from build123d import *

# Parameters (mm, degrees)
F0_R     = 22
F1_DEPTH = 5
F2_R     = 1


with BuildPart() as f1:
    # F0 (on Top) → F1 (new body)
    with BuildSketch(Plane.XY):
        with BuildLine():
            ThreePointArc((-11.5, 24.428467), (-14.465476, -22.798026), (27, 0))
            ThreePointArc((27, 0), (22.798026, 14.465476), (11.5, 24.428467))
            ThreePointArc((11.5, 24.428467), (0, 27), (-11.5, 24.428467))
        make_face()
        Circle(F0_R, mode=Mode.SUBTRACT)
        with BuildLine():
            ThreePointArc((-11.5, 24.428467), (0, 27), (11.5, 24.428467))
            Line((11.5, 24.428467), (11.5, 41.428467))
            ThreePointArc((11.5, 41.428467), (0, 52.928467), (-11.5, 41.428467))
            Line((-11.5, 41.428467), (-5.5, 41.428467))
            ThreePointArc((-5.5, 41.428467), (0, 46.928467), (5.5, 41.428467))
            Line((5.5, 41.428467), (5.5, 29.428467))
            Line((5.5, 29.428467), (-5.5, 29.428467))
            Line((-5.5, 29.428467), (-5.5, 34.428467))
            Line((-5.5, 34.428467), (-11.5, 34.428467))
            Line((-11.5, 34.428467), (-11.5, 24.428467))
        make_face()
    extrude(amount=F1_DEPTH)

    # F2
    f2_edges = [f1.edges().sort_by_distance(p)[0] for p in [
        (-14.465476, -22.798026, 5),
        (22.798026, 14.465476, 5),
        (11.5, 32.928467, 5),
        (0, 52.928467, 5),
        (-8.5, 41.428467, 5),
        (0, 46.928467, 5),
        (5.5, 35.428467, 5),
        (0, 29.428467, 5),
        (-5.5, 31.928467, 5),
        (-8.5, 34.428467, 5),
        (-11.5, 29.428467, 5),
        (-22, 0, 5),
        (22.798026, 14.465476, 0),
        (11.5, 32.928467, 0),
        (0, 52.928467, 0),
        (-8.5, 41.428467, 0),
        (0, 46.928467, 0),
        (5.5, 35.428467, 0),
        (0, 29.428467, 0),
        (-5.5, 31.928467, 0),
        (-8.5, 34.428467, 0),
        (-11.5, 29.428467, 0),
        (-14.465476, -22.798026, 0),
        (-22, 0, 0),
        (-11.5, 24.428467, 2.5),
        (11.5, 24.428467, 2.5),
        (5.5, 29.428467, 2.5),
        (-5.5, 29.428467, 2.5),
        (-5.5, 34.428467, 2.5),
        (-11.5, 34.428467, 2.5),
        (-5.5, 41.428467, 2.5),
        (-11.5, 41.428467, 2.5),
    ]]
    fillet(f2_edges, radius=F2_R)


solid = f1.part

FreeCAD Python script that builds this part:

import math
import FreeCAD as App
import Part
import Sketcher

V = App.Vector
Q = App.Units.Quantity

doc = App.newDocument("Part")
body = doc.addObject("PartDesign::Body", "Body")

sketch1 = doc.addObject("Sketcher::SketchObject", "Sketch")
body.addObject(sketch1)
sketch1.AttachmentSupport = (doc.XY_Plane, [""])
sketch1.MapMode = "FlatFace"
sketch1.addGeometry(Part.ArcOfCircle(Part.Circle(V(0, 0, 0), V(0, 0, 1), 27), math.radians(115.209286), math.radians(360)), False)
sketch1.addGeometry(Part.ArcOfCircle(Part.Circle(V(-0.000001, -0.000001, 0), V(0, 0, 1), 27.000001), math.radians(0.000002), math.radians(64.790712)), False)
sketch1.addGeometry(Part.LineSegment(V(11.5, 24.428467, 0), V(11.5, 41.428467, 0)), False)
sketch1.addGeometry(Part.ArcOfCircle(Part.Circle(V(0, 41.428467, 0), V(0, 0, 1), 11.5), math.radians(0), math.radians(180)), False)
sketch1.addGeometry(Part.LineSegment(V(-11.5, 41.428467, 0), V(-5.5, 41.428467, 0)), False)
sketch1.addGeometry(Part.ArcOfCircle(Part.Circle(V(0, 41.428467, 0), V(0, 0, 1), 5.5), math.radians(0), math.radians(180)), False)
sketch1.addGeometry(Part.LineSegment(V(5.5, 41.428467, 0), V(5.5, 29.428467, 0)), False)
sketch1.addGeometry(Part.LineSegment(V(5.5, 29.428467, 0), V(-5.5, 29.428467, 0)), False)
sketch1.addGeometry(Part.LineSegment(V(-5.5, 29.428467, 0), V(-5.5, 34.428467, 0)), False)
sketch1.addGeometry(Part.LineSegment(V(-5.5, 34.428467, 0), V(-11.5, 34.428467, 0)), False)
sketch1.addGeometry(Part.LineSegment(V(-11.5, 34.428467, 0), V(-11.5, 24.428467, 0)), False)
sketch1.addGeometry(Part.Circle(V(0, 0, 0), V(0, 0, 1), 22), False)
sketch1.addConstraint(Sketcher.Constraint("Tangent", 0, 2, 1, 1))
sketch1.addConstraint(Sketcher.Constraint("Coincident", 1, 2, 2, 1))
sketch1.addConstraint(Sketcher.Constraint("Tangent", 2, 2, 3, 1))
sketch1.addConstraint(Sketcher.Constraint("Coincident", 3, 2, 4, 1))
sketch1.addConstraint(Sketcher.Constraint("Coincident", 4, 2, 5, 2))
sketch1.addConstraint(Sketcher.Constraint("Tangent", 5, 1, 6, 1))
sketch1.addConstraint(Sketcher.Constraint("Coincident", 6, 2, 7, 1))
sketch1.addConstraint(Sketcher.Constraint("Coincident", 7, 2, 8, 1))
sketch1.addConstraint(Sketcher.Constraint("Coincident", 8, 2, 9, 1))
sketch1.addConstraint(Sketcher.Constraint("Coincident", 9, 2, 10, 1))
sketch1.addConstraint(Sketcher.Constraint("Coincident", 10, 2, 0, 1))
sketch1.addConstraint(Sketcher.Constraint("Vertical", 2))
sketch1.addConstraint(Sketcher.Constraint("Horizontal", 4))
sketch1.addConstraint(Sketcher.Constraint("Vertical", 6))
sketch1.addConstraint(Sketcher.Constraint("Horizontal", 7))
sketch1.addConstraint(Sketcher.Constraint("Vertical", 8))
sketch1.addConstraint(Sketcher.Constraint("Horizontal", 9))
sketch1.addConstraint(Sketcher.Constraint("Vertical", 10))
sketch1.addConstraint(Sketcher.Constraint("Coincident", 0, 3, -1, 1))
sketch1.addConstraint(Sketcher.Constraint("Coincident", 11, 3, -1, 1))
sketch1.addConstraint(Sketcher.Constraint("Coincident", 5, 3, 3, 3))
sketch1.addConstraint(Sketcher.Constraint("Equal", 0, 1))
sketch1.addConstraint(Sketcher.Constraint("Symmetric", 2, 2, 3, 2, -2))
sketch1.addConstraint(Sketcher.Constraint("PointOnObject", 0, 2, -1))
sketch1.addConstraint(Sketcher.Constraint("Horizontal", 1, 2, 10, 2))
sketch1.addConstraint(Sketcher.Constraint("Vertical", 4, 2, 7, 2))
sketch1.addConstraint(Sketcher.Constraint("Diameter", 11, Q("44 mm")))
sketch1.addConstraint(Sketcher.Constraint("Radius", 0, Q("27 mm")))
sketch1.addConstraint(Sketcher.Constraint("Radius", 3, Q("11.5 mm")))
sketch1.addConstraint(Sketcher.Constraint("Radius", 5, Q("5.5 mm")))
sketch1.addConstraint(Sketcher.Constraint("DistanceY", 2, 1, 2, 2, Q("17 mm")))
sketch1.addConstraint(Sketcher.Constraint("DistanceY", 6, 2, 6, 1, Q("12 mm")))
sketch1.addConstraint(Sketcher.Constraint("DistanceY", 8, 1, 8, 2, Q("5 mm")))
pad1 = doc.addObject("PartDesign::Pad", "Pad")
body.addObject(pad1)
pad1.Profile = sketch1
pad1.Length = 5
doc.recompute()

fillet = doc.addObject("PartDesign::Fillet", "Fillet")
body.addObject(fillet)
fillet.Base = (pad1, ["Edge1"])
fillet.UseAllEdges = True
fillet.Radius = 1

doc.recompute()
